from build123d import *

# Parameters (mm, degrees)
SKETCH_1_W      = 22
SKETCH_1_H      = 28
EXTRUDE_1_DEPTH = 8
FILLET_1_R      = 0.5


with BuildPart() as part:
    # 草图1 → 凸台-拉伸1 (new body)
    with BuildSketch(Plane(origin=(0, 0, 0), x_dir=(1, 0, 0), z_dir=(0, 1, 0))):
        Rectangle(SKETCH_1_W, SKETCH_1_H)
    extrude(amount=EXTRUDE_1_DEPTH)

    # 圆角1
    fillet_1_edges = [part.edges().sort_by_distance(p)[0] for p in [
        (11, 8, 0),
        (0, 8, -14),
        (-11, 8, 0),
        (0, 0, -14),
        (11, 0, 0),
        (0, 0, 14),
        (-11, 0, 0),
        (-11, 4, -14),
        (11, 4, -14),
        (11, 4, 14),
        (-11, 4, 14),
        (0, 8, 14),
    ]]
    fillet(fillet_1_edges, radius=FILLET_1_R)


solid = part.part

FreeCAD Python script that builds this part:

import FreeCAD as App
import Part
import Sketcher
from FreeCAD import Vector

doc = App.newDocument("Part")
body = doc.addObject("PartDesign::Body", "Body")

# Sketch on XZ plane
sketch1 = body.newObject("Sketcher::SketchObject", "Sketch")
sketch1.AttachmentSupport = (doc.getObject("XZ_Plane"), [""])
sketch1.MapMode = "FlatFace"
sketch1.addGeometry(Part.LineSegment(Vector(-11, -14, 0), Vector(-11, 14, 0)), False)
sketch1.addGeometry(Part.LineSegment(Vector(-11, 14, 0), Vector(11, 14, 0)), False)
sketch1.addGeometry(Part.LineSegment(Vector(11, 14, 0), Vector(11, -14, 0)), False)
sketch1.addGeometry(Part.LineSegment(Vector(11, -14, 0), Vector(-11, -14, 0)), False)
sketch1.addConstraint(Sketcher.Constraint("Coincident", 0, 2, 1, 1))
sketch1.addConstraint(Sketcher.Constraint("Coincident", 1, 2, 2, 1))
sketch1.addConstraint(Sketcher.Constraint("Coincident", 2, 2, 3, 1))
sketch1.addConstraint(Sketcher.Constraint("Coincident", 3, 2, 0, 1))
sketch1.addConstraint(Sketcher.Constraint("Vertical", 0))
sketch1.addConstraint(Sketcher.Constraint("Horizontal", 1))
sketch1.addConstraint(Sketcher.Constraint("Vertical", 2))
sketch1.addConstraint(Sketcher.Constraint("Horizontal", 3))
sketch1.addConstraint(Sketcher.Constraint("Symmetric", 0, 2, 2, 2, -1, 1))
sketch1.addConstraint(Sketcher.Constraint("DistanceX", 1, 1, 1, 2, 22.0))
sketch1.addConstraint(Sketcher.Constraint("DistanceY", 0, 1, 0, 2, 28.0))
pad1 = body.newObject("PartDesign::Pad", "Pad")
pad1.Profile = sketch1
pad1.Length = 8
pad1.Reversed = True
doc.recompute()

fillet = body.newObject("PartDesign::Fillet", "Fillet")
fillet.Base = (pad1, ["Edge1"])
fillet.UseAllEdges = True
fillet.Radius = 0.5

doc.recompute()
